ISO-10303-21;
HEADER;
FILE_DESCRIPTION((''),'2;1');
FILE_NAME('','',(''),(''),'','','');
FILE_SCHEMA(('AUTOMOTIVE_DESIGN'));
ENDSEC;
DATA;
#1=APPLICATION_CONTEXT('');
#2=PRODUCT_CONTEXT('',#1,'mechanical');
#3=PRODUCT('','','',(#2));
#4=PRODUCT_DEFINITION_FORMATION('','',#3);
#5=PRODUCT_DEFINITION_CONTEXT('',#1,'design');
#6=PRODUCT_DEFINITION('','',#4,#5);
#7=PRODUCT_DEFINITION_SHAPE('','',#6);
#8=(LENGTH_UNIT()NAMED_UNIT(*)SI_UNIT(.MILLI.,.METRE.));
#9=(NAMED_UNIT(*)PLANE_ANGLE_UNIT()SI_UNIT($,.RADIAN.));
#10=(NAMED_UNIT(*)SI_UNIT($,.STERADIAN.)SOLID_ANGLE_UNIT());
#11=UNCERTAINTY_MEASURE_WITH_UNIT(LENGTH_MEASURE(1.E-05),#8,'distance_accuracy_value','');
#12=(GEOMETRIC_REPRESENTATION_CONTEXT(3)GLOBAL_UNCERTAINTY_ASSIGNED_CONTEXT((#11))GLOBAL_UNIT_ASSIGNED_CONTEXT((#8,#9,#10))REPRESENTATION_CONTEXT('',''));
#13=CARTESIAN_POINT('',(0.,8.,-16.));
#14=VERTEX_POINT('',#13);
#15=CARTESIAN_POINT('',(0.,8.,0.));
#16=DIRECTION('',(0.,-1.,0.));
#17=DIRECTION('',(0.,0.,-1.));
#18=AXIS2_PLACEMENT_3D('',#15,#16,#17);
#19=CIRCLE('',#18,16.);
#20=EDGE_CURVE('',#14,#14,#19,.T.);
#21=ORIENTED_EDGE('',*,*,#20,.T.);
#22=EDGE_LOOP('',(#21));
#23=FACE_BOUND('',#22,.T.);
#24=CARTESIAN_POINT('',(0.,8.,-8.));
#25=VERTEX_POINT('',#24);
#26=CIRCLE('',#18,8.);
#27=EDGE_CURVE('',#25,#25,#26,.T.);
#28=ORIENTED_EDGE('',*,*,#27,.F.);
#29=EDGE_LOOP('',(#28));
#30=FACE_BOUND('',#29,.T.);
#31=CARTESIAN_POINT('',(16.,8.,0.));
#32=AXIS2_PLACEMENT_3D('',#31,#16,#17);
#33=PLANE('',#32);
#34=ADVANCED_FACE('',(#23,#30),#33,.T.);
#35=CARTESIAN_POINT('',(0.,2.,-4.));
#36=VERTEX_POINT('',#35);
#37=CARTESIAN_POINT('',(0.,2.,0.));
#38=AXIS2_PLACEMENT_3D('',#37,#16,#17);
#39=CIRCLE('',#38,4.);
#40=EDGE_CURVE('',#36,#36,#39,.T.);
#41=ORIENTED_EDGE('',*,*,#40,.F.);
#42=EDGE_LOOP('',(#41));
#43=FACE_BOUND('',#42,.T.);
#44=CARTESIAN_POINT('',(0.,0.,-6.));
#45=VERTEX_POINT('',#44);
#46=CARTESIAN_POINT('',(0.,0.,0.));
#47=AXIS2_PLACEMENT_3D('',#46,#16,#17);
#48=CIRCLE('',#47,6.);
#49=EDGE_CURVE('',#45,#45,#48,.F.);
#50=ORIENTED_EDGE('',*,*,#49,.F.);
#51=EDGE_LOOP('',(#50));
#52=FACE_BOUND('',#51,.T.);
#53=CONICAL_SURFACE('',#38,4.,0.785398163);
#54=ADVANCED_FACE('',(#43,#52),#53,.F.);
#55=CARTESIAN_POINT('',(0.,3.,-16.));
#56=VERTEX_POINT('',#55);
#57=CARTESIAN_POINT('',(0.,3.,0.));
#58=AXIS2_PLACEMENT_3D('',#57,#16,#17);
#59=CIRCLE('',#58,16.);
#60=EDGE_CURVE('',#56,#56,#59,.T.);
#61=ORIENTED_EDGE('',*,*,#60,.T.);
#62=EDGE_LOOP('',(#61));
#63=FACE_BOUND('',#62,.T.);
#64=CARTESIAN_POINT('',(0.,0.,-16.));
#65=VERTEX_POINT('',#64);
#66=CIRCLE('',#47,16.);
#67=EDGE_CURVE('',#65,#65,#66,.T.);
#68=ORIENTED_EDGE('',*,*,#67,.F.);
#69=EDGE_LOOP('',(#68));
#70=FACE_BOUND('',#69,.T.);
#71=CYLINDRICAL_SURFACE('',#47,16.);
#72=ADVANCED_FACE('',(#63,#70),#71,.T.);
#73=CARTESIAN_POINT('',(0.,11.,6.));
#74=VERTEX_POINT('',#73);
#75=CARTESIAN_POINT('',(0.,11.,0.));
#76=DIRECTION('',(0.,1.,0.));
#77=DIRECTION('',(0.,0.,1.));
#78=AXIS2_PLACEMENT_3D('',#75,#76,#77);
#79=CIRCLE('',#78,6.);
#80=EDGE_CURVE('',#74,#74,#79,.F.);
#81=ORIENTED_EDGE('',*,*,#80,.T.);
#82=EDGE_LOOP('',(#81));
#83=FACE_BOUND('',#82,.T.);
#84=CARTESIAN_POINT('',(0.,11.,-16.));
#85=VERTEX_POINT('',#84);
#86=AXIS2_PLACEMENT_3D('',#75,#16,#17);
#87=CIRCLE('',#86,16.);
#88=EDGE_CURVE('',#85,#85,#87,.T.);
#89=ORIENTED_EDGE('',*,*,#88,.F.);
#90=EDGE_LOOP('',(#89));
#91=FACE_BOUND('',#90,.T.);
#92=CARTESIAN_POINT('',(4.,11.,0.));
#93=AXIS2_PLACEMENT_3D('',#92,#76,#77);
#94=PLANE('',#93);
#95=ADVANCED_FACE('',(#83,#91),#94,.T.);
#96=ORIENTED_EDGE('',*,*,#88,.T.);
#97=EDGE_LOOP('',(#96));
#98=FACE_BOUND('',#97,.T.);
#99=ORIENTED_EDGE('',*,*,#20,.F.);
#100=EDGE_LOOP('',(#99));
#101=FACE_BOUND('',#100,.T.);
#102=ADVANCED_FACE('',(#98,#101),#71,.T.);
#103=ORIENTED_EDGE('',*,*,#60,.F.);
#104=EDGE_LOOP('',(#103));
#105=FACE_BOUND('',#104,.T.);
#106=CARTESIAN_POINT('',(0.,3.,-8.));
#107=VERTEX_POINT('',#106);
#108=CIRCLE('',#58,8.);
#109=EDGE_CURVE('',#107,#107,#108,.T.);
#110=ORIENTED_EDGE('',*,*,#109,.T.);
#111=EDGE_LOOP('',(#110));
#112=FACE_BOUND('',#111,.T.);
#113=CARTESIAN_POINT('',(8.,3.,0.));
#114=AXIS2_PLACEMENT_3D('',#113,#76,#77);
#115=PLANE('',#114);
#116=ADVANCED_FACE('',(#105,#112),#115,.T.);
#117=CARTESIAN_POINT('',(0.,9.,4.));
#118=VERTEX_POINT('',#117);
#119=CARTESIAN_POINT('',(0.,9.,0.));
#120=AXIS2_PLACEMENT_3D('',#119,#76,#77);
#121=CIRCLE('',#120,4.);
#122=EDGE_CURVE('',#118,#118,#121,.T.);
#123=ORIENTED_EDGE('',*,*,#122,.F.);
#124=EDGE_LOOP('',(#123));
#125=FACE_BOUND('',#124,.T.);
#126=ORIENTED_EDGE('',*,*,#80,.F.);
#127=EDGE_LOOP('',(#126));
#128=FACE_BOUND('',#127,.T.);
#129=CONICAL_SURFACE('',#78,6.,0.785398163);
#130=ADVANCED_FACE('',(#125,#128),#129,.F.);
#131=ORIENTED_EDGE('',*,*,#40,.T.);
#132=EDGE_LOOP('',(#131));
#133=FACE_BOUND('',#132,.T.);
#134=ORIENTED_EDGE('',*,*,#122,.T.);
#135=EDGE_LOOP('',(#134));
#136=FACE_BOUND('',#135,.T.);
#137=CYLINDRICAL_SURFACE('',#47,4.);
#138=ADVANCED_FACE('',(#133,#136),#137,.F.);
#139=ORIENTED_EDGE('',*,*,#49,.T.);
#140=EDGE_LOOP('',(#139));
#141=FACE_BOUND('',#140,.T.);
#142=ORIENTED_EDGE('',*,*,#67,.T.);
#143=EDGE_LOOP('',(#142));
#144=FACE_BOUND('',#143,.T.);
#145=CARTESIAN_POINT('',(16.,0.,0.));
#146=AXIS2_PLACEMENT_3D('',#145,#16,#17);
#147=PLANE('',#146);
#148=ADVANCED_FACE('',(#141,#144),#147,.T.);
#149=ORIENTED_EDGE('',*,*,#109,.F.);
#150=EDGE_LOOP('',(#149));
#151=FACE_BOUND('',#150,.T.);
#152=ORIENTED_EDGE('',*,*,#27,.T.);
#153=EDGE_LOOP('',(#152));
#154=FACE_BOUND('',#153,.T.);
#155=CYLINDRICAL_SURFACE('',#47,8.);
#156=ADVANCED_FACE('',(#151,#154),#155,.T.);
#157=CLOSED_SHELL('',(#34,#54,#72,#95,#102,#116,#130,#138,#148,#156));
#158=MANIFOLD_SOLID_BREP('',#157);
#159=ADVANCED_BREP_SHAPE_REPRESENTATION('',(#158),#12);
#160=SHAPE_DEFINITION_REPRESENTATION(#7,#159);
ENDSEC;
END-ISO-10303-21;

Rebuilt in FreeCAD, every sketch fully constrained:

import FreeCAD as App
import Part
import Sketcher
from FreeCAD import Vector
Q = App.Units.Quantity


def edges_at(feature, points):
    """Names of the edges that pass closest to the given points."""
    edges = feature.Shape.Edges
    near = lambda p: min(range(len(edges)), key=lambda i: edges[i].distToShape(Part.Vertex(*p))[0])
    return sorted({f"Edge{near(p) + 1}" for p in points})


def add_polygon(sketch, points):
    """Adds a closed chain of lines whose ends are joined by coincident constraints."""
    first, n = sketch.GeometryCount, len(points)
    for a, b in zip(points, points[1:] + points[:1]):
        sketch.addGeometry(Part.LineSegment(App.Vector(*a, 0), App.Vector(*b, 0)), False)
    for i in range(n):
        sketch.addConstraint(Sketcher.Constraint("Coincident", first + i, 2, first + (i + 1) % n, 1))

doc = App.newDocument("Part")
body = doc.addObject("PartDesign::Body", "Body")

sketch1 = body.newObject("Sketcher::SketchObject", "Sketch")
sketch1.AttachmentSupport = (doc.getObject("XY_Plane"), [""])
sketch1.MapMode = "FlatFace"
add_polygon(sketch1, [(4, 11), (4, 0), (16, 0), (16, 3), (8, 3), (8, 8), (16, 8), (16, 11)])
sketch1.addConstraint([
    Sketcher.Constraint("Vertical", 0),
    Sketcher.Constraint("Horizontal", 1),
    Sketcher.Constraint("Vertical", 2),
    Sketcher.Constraint("Horizontal", 3),
    Sketcher.Constraint("Vertical", 4),
    Sketcher.Constraint("Horizontal", 5),
    Sketcher.Constraint("Vertical", 6),
    Sketcher.Constraint("Horizontal", 7),
    Sketcher.Constraint("PointOnObject", 0, 2, -1),
    Sketcher.Constraint("Vertical", 2, 2, 5, 2),
    Sketcher.Constraint("Equal", 2, 6),
    Sketcher.Constraint("DistanceX", 1, 1, 1, 2, Q("12 mm")),
    Sketcher.Constraint("DistanceX", 3, 2, 3, 1, Q("8 mm")),
    Sketcher.Constraint("DistanceY", 0, 2, 0, 1, Q("11 mm")),
    Sketcher.Constraint("DistanceY", 2, 1, 2, 2, Q("3 mm")),
    Sketcher.Constraint("DistanceX", -1, 1, 0, 2, Q("4 mm")),
])
revolution = body.newObject("PartDesign::Revolution", "Revolution")
revolution.Profile = sketch1
revolution.ReferenceAxis = (sketch1, ["V_Axis"])
revolution.Angle = 360
doc.recompute()

chamfer = body.newObject("PartDesign::Chamfer", "Chamfer")
chamfer.Base = (revolution, edges_at(revolution, [(0, 0, 4), (0, 11, 4)]))
chamfer.Size = 2

doc.recompute()
